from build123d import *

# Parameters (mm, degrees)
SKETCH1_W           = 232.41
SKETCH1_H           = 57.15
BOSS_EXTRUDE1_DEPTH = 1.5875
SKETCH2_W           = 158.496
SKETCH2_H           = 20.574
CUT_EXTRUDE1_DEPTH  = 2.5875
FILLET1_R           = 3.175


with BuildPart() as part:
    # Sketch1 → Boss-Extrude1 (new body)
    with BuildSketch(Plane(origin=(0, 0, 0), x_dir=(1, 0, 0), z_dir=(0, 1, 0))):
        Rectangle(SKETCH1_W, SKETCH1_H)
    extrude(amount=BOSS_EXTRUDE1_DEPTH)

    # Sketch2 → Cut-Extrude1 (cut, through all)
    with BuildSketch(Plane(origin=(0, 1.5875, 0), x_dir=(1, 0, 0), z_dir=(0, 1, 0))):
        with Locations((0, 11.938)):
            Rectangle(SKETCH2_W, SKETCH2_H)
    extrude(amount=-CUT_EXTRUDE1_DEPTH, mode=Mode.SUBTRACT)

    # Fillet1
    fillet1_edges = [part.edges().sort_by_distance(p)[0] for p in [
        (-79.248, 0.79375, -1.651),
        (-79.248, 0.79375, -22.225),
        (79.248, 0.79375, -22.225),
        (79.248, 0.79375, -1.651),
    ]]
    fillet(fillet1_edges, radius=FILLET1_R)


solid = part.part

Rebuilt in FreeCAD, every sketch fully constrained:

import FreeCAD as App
import Part
import Sketcher
Q = App.Units.Quantity


def edges_at(feature, points):
    """Names of the edges that pass closest to the given points."""
    edges = feature.Shape.Edges
    near = lambda p: min(range(len(edges)), key=lambda i: edges[i].distToShape(Part.Vertex(*p))[0])
    return sorted({f"Edge{near(p) + 1}" for p in points})


def add_polygon(sketch, points):
    """Adds a closed chain of lines whose ends are joined by coincident constraints."""
    first, n = sketch.GeometryCount, len(points)
    for a, b in zip(points, points[1:] + points[:1]):
        sketch.addGeometry(Part.LineSegment(App.Vector(*a, 0), App.Vector(*b, 0)), False)
    for i in range(n):
        sketch.addConstraint(Sketcher.Constraint("Coincident", first + i, 2, first + (i + 1) % n, 1))

doc = App.newDocument("Part")
params = doc.addObject("Spreadsheet::Sheet", "Params")
for row, (alias, value) in enumerate([
    ("sketch1_width", "9.15 in"),
    ("sketch1_height", "2.25 in"),
    ("pad1_length", "0.0625 in"),
    ("sketch2_width", "6.24 in"),
    ("sketch2_height", "0.81 in"),
    ("fillet_radius", "0.125 in"),
], start=1):
    params.set(f"A{row}", alias)
    params.set(f"B{row}", "=" + value)
    params.setAlias(f"B{row}", alias)

body = doc.addObject("PartDesign::Body", "Body")

# Sketch on XZ plane
sketch1 = body.newObject("Sketcher::SketchObject", "Sketch")
sketch1.AttachmentSupport = (doc.getObject("XZ_Plane"), [""])
sketch1.MapMode = "FlatFace"
add_polygon(sketch1, [(-116, -29), (-116, 29), (116, 29), (116, -29)])  # lines 0-3
sketch1.addConstraint([
    Sketcher.Constraint("Vertical", 0),
    Sketcher.Constraint("Horizontal", 1),
    Sketcher.Constraint("Vertical", 2),
    Sketcher.Constraint("Horizontal", 3),
    Sketcher.Constraint("Symmetric", 0, 2, 2, 2, -1, 1),
    Sketcher.Constraint("DistanceX", 1, 1, 1, 2, Q("9.15 in")),
    Sketcher.Constraint("DistanceY", 0, 1, 0, 2, Q("2.25 in")),
])
sketch1.setExpression("Constraints[9]", "Params.sketch1_width")
sketch1.setExpression("Constraints[10]", "Params.sketch1_height")
pad1 = body.newObject("PartDesign::Pad", "Pad")
pad1.Profile = sketch1
pad1.setExpression("Length", "Params.pad1_length")
pad1.Reversed = True

# Sketch on XZ plane
sketch2 = body.newObject("Sketcher::SketchObject", "Sketch001")
sketch2.AttachmentSupport = (doc.getObject("XZ_Plane"), [""])
sketch2.MapMode = "FlatFace"
sketch2.AttachmentOffset = App.Placement(App.Vector(0, 0, -0.0625 * 25.4), App.Rotation())
add_polygon(sketch2, [(-79, -22), (-79, -2), (79, -2), (79, -22)])  # lines 0-3
sketch2.addConstraint([
    Sketcher.Constraint("Vertical", 0),
    Sketcher.Constraint("Horizontal", 1),
    Sketcher.Constraint("Vertical", 2),
    Sketcher.Constraint("Horizontal", 3),
    Sketcher.Constraint("DistanceX", 1, 1, 1, 2, Q("6.24 in")),
    Sketcher.Constraint("DistanceY", 0, 1, 0, 2, Q("0.81 in")),
    Sketcher.Constraint("DistanceX", 0, 2, -1, 1, Q("3.12 in")),
    Sketcher.Constraint("DistanceY", 0, 2, -1, 1, Q("0.065 in")),
])
sketch2.setExpression("Constraints[8]", "Params.sketch2_width")
sketch2.setExpression("Constraints[9]", "Params.sketch2_height")
pocket1 = body.newObject("PartDesign::Pocket", "Pocket")
pocket1.Profile = sketch2
pocket1.Type = "ThroughAll"
pocket1.Reversed = True
doc.recompute()

fillet = body.newObject("PartDesign::Fillet", "Fillet")
fillet.Base = (pocket1, edges_at(pocket1, [
    (-79.248, 0.794, -1.651),
    (-79.248, 0.794, -22.225),
    (79.248, 0.794, -22.225),
    (79.248, 0.794, -1.651),
]))
fillet.setExpression("Radius", "Params.fillet_radius")

doc.recompute()
